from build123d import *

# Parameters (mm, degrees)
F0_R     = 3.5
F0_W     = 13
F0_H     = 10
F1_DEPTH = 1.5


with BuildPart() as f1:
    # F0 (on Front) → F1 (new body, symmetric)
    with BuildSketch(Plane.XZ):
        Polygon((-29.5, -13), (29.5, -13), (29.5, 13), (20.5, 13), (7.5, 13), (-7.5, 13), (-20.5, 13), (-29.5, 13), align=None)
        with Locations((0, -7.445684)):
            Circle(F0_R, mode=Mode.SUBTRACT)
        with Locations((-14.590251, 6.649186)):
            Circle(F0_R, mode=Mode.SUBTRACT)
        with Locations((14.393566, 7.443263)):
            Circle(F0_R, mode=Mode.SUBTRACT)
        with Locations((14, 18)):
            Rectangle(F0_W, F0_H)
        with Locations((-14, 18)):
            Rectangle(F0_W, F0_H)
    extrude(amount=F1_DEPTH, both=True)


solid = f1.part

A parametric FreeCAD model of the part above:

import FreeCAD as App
import Part
import Sketcher

V = App.Vector
Q = App.Units.Quantity

doc = App.newDocument("Part")
params = doc.addObject("Spreadsheet::Sheet", "Params")
for row, (alias, value) in enumerate([
    ("sketch1_diameter", "7 mm"),
    ("sketch1_width", "59 mm"),
    ("sketch1_width2", "9 mm"),
    ("sketch1_width3", "13 mm"),
    ("sketch1_height", "26 mm"),
    ("pad1_length", "3 mm"),
], start=1):
    params.set(f"A{row}", alias)
    params.set(f"B{row}", "=" + value)
    params.setAlias(f"B{row}", alias)

body = doc.addObject("PartDesign::Body", "Body")

# Sketch on XZ plane
sketch1 = body.newObject("Sketcher::SketchObject", "Sketch")
sketch1.AttachmentSupport = (doc.getObject("XZ_Plane"), [""])
sketch1.MapMode = "FlatFace"
sketch1.addGeometry(Part.LineSegment(V(-29.5, -13, 0), V(29.5, -13, 0)), False)
sketch1.addGeometry(Part.LineSegment(V(29.5, -13, 0), V(29.5, 13, 0)), False)
sketch1.addGeometry(Part.LineSegment(V(29.5, 13, 0), V(20.5, 13, 0)), False)
sketch1.addGeometry(Part.LineSegment(V(20.5, 13, 0), V(20.5, 23, 0)), False)
sketch1.addGeometry(Part.LineSegment(V(20.5, 23, 0), V(7.5, 23, 0)), False)
sketch1.addGeometry(Part.LineSegment(V(7.5, 23, 0), V(7.5, 13, 0)), False)
sketch1.addGeometry(Part.LineSegment(V(7.5, 13, 0), V(-7.5, 13, 0)), False)
sketch1.addGeometry(Part.LineSegment(V(-7.5, 13, 0), V(-7.5, 23, 0)), False)
sketch1.addGeometry(Part.LineSegment(V(-7.5, 23, 0), V(-20.5, 23, 0)), False)
sketch1.addGeometry(Part.LineSegment(V(-20.5, 23, 0), V(-20.5, 13, 0)), False)
sketch1.addGeometry(Part.LineSegment(V(-20.5, 13, 0), V(-29.5, 13, 0)), False)
sketch1.addGeometry(Part.LineSegment(V(-29.5, 13, 0), V(-29.5, -13, 0)), False)
sketch1.addGeometry(Part.Circle(V(0, -7.4, 0), V(0, 0, 1), 3.5), False)
sketch1.addGeometry(Part.Circle(V(-14.6, 6.6, 0), V(0, 0, 1), 3.5), False)
sketch1.addGeometry(Part.Circle(V(14.4, 7.4, 0), V(0, 0, 1), 3.5), False)
sketch1.addConstraint(Sketcher.Constraint("Coincident", 0, 2, 1, 1))
sketch1.addConstraint(Sketcher.Constraint("Coincident", 1, 2, 2, 1))
sketch1.addConstraint(Sketcher.Constraint("Coincident", 2, 2, 3, 1))
sketch1.addConstraint(Sketcher.Constraint("Coincident", 3, 2, 4, 1))
sketch1.addConstraint(Sketcher.Constraint("Coincident", 4, 2, 5, 1))
sketch1.addConstraint(Sketcher.Constraint("Coincident", 5, 2, 6, 1))
sketch1.addConstraint(Sketcher.Constraint("Coincident", 6, 2, 7, 1))
sketch1.addConstraint(Sketcher.Constraint("Coincident", 7, 2, 8, 1))
sketch1.addConstraint(Sketcher.Constraint("Coincident", 8, 2, 9, 1))
sketch1.addConstraint(Sketcher.Constraint("Coincident", 9, 2, 10, 1))
sketch1.addConstraint(Sketcher.Constraint("Coincident", 10, 2, 11, 1))
sketch1.addConstraint(Sketcher.Constraint("Coincident", 11, 2, 0, 1))
sketch1.addConstraint(Sketcher.Constraint("Horizontal", 0))
sketch1.addConstraint(Sketcher.Constraint("Vertical", 1))
sketch1.addConstraint(Sketcher.Constraint("Horizontal", 2))
sketch1.addConstraint(Sketcher.Constraint("Vertical", 3))
sketch1.addConstraint(Sketcher.Constraint("Horizontal", 4))
sketch1.addConstraint(Sketcher.Constraint("Vertical", 5))
sketch1.addConstraint(Sketcher.Constraint("Horizontal", 6))
sketch1.addConstraint(Sketcher.Constraint("Vertical", 7))
sketch1.addConstraint(Sketcher.Constraint("Horizontal", 8))
sketch1.addConstraint(Sketcher.Constraint("Vertical", 9))
sketch1.addConstraint(Sketcher.Constraint("Horizontal", 10))
sketch1.addConstraint(Sketcher.Constraint("Vertical", 11))
sketch1.addConstraint(Sketcher.Constraint("Equal", 12, 13))
sketch1.addConstraint(Sketcher.Constraint("Equal", 13, 14))
sketch1.addConstraint(Sketcher.Constraint("Symmetric", 0, 2, 10, 2, -1, 1))
sketch1.addConstraint(Sketcher.Constraint("Symmetric", 4, 2, 7, 2, -2))
sketch1.addConstraint(Sketcher.Constraint("Symmetric", 2, 2, 9, 2, -2))
sketch1.addConstraint(Sketcher.Constraint("PointOnObject", 12, 3, -2))
sketch1.addConstraint(Sketcher.Constraint("Horizontal", 2, 2, 5, 2))
sketch1.addConstraint(Sketcher.Constraint("Diameter", 12, Q("7 mm")))
sketch1.addConstraint(Sketcher.Constraint("DistanceX", 0, 1, 0, 2, Q("59 mm")))
sketch1.addConstraint(Sketcher.Constraint("DistanceX", 2, 2, 2, 1, Q("9 mm")))
sketch1.addConstraint(Sketcher.Constraint("DistanceX", 4, 2, 4, 1, Q("13 mm")))
sketch1.addConstraint(Sketcher.Constraint("DistanceY", 1, 1, 1, 2, Q("26 mm")))
sketch1.addConstraint(Sketcher.Constraint("DistanceY", 3, 1, 3, 2, Q("10 mm")))
sketch1.addConstraint(Sketcher.Constraint("DistanceX", 13, 3, -1, 1, Q("14.590251 mm")))
sketch1.addConstraint(Sketcher.Constraint("DistanceY", 12, 3, 13, 3, Q("14.09487 mm")))
sketch1.addConstraint(Sketcher.Constraint("DistanceY", 12, 3, -1, 1, Q("7.445684 mm")))
sketch1.addConstraint(Sketcher.Constraint("DistanceX", -1, 1, 14, 3, Q("14.393566 mm")))
sketch1.addConstraint(Sketcher.Constraint("DistanceY", -1, 1, 14, 3, Q("7.443263 mm")))
sketch1.setExpression("Constraints[31]", "Params.sketch1_diameter")
sketch1.setExpression("Constraints[32]", "Params.sketch1_width")
sketch1.setExpression("Constraints[33]", "Params.sketch1_width2")
sketch1.setExpression("Constraints[34]", "Params.sketch1_width3")
sketch1.setExpression("Constraints[35]", "Params.sketch1_height")
pad1 = body.newObject("PartDesign::Pad", "Pad")
pad1.Profile = sketch1
pad1.setExpression("Length", "Params.pad1_length")
pad1.Midplane = True

doc.recompute()
